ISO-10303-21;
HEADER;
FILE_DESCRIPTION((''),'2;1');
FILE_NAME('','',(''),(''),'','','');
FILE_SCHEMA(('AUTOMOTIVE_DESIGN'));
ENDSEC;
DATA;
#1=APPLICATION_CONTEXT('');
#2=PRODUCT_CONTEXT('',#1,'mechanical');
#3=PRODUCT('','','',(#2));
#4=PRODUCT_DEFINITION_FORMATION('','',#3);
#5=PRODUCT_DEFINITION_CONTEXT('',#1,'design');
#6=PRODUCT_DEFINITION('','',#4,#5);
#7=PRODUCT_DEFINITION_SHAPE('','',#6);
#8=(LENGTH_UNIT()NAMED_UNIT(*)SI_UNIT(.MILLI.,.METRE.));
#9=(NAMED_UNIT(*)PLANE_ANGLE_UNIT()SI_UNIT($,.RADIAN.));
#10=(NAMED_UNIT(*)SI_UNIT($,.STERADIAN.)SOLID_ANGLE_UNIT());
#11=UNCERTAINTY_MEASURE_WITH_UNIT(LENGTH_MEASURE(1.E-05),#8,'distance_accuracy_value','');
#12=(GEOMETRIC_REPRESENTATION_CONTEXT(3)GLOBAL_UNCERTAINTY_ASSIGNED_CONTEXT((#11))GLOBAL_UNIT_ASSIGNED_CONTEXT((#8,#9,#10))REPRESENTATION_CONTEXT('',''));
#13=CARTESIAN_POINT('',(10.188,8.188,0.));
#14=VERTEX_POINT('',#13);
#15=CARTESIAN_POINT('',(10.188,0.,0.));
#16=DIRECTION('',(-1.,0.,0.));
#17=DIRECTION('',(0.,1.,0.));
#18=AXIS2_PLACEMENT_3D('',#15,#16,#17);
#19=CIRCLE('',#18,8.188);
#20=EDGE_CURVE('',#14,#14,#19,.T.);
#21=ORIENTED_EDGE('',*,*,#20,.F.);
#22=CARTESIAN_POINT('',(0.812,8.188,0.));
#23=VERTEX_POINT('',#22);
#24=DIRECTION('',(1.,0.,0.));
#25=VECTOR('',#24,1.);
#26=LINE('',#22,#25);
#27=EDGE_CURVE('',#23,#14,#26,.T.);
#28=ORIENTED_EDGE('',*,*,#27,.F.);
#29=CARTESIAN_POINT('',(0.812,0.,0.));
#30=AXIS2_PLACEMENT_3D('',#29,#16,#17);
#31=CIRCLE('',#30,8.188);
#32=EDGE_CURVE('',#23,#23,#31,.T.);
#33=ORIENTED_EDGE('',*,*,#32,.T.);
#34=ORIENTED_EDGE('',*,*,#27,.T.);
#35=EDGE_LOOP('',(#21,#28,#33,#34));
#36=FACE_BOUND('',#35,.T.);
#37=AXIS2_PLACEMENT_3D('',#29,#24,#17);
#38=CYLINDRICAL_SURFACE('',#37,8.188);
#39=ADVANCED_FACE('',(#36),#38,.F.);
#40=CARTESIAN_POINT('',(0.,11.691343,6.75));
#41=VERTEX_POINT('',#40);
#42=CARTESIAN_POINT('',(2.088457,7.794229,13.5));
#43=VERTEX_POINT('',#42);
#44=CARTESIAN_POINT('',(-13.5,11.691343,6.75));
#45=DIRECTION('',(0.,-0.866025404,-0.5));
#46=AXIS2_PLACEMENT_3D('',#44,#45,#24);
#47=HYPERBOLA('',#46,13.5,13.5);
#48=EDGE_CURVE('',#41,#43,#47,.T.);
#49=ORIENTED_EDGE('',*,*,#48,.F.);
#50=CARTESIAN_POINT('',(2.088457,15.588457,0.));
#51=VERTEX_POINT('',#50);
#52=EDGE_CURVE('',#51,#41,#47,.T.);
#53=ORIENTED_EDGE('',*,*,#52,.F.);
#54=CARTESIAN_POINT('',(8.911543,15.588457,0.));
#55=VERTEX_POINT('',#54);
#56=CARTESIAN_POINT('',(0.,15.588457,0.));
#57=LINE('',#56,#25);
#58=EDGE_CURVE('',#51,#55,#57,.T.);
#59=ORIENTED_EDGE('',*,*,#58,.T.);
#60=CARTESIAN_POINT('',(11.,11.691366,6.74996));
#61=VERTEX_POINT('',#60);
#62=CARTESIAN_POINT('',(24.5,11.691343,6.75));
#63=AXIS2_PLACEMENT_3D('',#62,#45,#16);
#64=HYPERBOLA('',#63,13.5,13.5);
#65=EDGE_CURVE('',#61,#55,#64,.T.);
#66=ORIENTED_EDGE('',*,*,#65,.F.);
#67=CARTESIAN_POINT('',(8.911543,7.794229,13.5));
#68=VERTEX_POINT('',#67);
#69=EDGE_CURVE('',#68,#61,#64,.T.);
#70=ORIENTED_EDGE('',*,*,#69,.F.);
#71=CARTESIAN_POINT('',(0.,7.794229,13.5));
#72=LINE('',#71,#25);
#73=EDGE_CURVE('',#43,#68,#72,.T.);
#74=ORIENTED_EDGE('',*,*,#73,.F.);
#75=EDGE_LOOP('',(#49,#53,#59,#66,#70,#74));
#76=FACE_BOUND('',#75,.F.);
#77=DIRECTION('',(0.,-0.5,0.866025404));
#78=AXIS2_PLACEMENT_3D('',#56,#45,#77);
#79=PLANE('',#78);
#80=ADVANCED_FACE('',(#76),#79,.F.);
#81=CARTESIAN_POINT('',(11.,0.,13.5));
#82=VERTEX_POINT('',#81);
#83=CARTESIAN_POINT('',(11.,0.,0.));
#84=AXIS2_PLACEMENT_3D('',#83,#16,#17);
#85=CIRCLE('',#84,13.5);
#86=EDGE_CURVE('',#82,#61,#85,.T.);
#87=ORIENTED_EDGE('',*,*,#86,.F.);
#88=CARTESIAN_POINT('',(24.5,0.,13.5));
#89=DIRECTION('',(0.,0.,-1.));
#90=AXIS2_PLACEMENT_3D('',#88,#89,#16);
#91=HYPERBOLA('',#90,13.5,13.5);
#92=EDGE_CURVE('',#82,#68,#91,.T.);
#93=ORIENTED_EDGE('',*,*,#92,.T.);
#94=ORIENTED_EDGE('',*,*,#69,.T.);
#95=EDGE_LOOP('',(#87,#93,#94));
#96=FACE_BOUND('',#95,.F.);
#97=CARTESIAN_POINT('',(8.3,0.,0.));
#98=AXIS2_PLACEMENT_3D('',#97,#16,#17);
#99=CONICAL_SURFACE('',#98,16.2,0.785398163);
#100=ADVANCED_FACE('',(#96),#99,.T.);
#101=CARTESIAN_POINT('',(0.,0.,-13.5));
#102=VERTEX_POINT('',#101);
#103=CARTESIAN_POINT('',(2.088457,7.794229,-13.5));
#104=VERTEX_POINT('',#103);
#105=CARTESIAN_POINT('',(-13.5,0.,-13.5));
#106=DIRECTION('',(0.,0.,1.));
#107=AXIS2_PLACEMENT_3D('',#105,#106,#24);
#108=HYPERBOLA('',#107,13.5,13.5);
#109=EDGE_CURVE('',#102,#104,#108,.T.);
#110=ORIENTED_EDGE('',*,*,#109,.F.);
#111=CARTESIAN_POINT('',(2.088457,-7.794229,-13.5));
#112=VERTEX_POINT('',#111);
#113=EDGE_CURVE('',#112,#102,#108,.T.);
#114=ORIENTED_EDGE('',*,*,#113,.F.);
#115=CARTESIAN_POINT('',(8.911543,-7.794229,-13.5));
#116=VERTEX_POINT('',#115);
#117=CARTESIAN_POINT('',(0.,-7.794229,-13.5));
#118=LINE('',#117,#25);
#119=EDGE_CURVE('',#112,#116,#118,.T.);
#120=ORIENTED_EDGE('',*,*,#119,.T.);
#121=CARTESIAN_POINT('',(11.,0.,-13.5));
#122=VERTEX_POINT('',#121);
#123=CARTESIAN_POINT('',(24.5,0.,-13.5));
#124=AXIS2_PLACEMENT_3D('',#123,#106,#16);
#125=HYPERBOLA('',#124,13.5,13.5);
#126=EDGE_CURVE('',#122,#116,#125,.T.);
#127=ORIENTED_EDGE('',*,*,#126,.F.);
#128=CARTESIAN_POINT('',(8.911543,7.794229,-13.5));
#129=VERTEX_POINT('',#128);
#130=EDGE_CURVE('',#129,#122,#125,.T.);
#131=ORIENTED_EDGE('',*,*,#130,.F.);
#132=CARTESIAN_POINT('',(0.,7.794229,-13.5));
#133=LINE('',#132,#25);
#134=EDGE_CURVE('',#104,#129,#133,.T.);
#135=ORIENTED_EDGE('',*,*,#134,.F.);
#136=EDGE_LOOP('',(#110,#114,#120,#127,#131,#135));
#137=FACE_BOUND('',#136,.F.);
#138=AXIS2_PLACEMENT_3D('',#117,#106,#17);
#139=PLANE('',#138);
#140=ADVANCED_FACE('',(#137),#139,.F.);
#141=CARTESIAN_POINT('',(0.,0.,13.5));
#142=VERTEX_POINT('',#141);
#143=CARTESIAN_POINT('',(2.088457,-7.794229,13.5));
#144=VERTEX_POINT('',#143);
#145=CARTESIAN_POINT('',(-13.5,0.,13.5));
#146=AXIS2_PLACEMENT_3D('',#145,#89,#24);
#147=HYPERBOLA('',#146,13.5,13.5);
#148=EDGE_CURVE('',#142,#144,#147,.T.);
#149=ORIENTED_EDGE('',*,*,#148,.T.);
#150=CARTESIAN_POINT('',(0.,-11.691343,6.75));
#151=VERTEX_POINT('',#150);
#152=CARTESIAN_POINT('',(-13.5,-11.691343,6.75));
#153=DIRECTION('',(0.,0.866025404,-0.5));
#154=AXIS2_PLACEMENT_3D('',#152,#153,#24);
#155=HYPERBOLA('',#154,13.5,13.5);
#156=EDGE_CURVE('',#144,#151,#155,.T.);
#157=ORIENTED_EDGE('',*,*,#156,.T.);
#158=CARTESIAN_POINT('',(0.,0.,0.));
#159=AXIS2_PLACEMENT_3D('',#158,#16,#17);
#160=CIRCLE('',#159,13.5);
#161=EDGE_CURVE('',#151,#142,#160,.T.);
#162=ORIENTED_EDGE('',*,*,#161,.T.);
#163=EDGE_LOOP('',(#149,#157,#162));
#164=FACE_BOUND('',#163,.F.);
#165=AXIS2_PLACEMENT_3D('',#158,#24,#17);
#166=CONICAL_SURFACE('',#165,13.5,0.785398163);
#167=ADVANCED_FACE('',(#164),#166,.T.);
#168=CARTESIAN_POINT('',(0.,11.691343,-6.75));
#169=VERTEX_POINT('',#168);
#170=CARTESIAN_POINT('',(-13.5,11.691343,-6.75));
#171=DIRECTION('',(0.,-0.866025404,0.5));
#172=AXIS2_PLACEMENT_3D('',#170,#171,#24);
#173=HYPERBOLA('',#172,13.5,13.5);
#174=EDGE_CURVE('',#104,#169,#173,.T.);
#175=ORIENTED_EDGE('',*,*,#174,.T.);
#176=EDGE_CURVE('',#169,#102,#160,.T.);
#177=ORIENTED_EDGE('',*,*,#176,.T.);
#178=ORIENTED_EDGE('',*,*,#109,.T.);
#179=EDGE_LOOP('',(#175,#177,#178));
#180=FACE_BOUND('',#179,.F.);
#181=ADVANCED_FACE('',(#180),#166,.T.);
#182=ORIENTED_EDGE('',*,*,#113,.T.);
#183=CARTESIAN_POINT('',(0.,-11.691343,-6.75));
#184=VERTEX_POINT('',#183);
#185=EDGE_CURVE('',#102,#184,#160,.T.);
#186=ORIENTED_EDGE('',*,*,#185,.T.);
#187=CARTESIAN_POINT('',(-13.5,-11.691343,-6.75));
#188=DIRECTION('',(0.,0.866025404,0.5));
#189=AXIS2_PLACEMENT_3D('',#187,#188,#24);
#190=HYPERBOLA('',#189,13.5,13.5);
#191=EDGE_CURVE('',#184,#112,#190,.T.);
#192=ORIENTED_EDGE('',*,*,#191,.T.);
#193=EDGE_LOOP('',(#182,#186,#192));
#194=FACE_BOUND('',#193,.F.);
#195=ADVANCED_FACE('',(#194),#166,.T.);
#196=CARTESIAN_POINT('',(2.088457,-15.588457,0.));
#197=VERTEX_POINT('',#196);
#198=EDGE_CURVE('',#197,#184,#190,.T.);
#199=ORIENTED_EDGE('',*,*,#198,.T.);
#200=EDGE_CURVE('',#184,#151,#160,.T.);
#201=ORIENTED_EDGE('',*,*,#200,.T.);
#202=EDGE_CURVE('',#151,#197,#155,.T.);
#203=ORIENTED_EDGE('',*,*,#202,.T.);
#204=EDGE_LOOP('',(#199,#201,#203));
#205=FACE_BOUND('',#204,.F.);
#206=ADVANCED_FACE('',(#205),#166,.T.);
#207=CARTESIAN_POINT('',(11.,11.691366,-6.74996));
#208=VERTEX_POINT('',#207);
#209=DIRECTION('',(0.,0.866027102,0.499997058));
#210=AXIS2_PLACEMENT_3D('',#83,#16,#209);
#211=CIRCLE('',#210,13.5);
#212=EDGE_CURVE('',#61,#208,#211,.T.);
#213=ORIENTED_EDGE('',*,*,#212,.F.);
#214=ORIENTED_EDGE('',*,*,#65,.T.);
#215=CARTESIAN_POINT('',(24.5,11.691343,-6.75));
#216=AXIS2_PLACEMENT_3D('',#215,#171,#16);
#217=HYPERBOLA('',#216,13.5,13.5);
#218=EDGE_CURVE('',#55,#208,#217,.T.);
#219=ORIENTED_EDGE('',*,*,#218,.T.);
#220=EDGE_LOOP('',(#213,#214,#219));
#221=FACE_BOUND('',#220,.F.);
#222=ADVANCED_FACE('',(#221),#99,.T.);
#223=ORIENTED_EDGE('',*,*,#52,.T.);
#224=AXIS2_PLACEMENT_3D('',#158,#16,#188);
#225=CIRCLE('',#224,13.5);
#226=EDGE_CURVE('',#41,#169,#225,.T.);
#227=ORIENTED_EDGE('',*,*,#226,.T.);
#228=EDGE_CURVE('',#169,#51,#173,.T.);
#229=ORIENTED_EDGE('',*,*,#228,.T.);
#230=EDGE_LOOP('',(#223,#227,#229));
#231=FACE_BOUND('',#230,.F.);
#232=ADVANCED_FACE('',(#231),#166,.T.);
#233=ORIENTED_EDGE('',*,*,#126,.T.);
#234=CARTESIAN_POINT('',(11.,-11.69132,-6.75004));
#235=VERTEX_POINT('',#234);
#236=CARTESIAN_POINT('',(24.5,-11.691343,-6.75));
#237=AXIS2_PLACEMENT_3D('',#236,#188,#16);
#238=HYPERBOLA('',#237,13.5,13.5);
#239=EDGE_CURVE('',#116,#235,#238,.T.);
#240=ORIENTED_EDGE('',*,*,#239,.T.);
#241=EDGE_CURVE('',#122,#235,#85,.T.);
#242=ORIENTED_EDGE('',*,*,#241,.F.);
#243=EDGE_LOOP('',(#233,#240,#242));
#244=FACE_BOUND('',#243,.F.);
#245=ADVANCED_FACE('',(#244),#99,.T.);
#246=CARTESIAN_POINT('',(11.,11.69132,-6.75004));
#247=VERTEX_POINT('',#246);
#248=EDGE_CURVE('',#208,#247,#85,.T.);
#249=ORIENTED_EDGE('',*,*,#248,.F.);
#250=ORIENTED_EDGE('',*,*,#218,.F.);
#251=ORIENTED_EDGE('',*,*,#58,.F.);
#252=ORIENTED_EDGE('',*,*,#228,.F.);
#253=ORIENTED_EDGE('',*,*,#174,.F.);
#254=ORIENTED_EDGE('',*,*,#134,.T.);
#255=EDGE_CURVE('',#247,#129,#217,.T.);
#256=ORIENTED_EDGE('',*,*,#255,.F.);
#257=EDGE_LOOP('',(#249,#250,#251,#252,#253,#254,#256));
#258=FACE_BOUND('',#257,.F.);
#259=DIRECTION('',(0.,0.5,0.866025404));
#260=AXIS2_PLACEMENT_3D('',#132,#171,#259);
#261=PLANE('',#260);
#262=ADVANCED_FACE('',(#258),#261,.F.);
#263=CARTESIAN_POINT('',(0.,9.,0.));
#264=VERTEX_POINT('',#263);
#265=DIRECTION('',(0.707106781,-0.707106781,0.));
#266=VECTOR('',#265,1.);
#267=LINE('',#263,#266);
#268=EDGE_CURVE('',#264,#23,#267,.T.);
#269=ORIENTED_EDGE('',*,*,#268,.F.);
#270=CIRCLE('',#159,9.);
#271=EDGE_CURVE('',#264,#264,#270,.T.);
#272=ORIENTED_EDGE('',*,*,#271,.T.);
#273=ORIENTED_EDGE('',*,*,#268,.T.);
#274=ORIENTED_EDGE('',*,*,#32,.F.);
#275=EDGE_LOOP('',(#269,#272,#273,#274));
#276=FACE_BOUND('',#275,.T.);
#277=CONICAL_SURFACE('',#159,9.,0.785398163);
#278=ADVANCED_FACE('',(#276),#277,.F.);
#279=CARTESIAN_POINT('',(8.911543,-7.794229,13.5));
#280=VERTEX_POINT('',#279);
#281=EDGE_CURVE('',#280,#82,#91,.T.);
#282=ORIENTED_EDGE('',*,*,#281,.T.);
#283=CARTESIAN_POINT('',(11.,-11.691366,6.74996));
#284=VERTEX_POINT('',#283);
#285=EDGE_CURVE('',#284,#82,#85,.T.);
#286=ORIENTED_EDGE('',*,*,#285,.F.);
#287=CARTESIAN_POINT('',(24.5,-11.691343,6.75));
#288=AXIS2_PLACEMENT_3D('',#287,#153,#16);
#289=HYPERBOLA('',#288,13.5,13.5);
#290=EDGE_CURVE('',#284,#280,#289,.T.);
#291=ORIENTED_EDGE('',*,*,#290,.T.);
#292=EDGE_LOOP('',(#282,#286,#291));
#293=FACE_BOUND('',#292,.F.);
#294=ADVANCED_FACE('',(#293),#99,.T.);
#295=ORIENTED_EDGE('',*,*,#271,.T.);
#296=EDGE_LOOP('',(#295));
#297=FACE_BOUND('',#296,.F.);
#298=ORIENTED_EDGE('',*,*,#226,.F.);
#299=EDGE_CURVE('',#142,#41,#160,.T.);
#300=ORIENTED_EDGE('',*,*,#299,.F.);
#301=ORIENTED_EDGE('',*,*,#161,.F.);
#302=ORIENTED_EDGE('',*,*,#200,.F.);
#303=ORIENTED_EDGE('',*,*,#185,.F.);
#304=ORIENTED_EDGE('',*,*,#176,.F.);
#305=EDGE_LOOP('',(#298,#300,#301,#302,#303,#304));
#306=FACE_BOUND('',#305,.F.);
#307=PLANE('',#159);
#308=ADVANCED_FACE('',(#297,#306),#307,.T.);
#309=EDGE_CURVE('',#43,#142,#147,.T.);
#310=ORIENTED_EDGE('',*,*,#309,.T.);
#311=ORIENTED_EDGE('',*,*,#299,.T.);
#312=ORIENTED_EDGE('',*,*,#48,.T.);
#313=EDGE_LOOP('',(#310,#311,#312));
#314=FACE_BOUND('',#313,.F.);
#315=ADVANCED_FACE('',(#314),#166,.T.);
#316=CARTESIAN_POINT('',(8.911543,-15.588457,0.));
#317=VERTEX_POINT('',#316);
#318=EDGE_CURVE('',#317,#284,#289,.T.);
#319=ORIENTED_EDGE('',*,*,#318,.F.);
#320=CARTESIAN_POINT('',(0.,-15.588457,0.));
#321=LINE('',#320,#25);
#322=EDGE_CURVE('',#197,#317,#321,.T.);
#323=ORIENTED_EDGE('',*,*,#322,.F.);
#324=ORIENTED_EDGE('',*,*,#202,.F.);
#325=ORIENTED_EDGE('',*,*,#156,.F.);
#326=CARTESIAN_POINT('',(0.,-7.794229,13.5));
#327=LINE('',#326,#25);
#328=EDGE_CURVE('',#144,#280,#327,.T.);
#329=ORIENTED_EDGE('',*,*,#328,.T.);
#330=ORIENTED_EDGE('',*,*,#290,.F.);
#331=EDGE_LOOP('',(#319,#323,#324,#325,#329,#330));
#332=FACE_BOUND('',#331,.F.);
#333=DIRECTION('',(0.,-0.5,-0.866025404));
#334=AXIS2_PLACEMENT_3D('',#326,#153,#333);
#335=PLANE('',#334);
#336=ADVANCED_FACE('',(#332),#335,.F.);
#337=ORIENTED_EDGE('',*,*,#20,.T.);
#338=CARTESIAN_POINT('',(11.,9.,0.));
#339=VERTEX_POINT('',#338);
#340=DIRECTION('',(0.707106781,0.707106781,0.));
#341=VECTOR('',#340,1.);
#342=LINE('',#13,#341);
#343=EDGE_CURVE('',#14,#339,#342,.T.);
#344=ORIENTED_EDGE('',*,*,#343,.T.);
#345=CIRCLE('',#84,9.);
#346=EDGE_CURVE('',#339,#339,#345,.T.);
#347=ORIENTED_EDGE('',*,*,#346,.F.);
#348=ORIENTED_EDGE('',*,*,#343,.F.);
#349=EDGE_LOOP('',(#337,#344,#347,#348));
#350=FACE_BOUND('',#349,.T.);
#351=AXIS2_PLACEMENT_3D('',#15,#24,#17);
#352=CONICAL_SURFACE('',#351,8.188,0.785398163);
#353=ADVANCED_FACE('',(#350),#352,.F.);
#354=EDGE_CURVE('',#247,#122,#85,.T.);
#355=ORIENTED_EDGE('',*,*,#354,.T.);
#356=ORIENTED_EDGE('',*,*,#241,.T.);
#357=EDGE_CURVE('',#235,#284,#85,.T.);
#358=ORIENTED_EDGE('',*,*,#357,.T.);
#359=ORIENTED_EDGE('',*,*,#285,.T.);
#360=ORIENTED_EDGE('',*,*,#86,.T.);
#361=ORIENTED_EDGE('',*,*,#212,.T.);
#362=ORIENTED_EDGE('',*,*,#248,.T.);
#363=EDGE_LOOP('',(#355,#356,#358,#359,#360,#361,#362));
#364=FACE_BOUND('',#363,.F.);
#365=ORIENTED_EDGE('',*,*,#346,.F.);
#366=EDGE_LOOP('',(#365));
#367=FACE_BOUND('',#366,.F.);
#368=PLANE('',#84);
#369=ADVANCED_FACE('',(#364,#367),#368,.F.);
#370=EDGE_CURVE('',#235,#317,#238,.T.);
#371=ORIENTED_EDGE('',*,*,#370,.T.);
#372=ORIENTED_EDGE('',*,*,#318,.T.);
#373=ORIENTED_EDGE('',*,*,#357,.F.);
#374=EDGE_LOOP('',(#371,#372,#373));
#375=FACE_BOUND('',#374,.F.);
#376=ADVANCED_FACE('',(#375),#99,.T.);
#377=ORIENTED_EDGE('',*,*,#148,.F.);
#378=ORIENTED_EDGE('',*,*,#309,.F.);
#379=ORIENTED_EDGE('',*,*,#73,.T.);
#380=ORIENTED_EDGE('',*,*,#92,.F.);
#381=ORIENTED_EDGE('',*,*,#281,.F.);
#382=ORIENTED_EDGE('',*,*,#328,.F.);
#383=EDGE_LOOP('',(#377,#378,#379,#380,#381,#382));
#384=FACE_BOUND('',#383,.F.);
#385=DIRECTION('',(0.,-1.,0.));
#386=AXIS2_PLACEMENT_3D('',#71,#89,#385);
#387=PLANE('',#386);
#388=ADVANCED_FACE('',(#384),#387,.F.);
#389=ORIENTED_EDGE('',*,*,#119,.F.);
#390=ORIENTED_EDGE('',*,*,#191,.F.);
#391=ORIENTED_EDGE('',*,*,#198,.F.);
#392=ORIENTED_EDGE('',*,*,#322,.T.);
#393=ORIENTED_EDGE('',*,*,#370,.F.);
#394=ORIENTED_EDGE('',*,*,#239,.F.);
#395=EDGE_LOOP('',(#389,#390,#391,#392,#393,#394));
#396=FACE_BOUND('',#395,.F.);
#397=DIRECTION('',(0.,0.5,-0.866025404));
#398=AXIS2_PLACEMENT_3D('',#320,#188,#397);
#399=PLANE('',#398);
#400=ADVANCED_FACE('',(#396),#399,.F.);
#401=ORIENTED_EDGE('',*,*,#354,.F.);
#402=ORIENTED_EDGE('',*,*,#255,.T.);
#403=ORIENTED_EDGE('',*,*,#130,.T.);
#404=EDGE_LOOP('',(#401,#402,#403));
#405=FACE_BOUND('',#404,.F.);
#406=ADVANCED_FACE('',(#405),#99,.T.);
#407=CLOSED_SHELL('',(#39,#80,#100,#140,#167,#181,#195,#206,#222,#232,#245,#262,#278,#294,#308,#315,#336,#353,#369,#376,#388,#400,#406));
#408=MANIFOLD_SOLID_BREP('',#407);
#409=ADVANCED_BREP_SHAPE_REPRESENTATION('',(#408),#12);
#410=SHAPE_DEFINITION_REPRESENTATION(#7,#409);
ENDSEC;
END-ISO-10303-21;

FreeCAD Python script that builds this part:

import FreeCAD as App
import Part
import Sketcher

V = App.Vector
Q = App.Units.Quantity


def add_polygon(sketch, points):
    """Adds a closed chain of lines whose ends are joined by coincident constraints."""
    first, n = sketch.GeometryCount, len(points)
    for a, b in zip(points, points[1:] + points[:1]):
        sketch.addGeometry(Part.LineSegment(App.Vector(*a, 0), App.Vector(*b, 0)), False)
    for i in range(n):
        sketch.addConstraint(Sketcher.Constraint("Coincident", first + i, 2, first + (i + 1) % n, 1))

doc = App.newDocument("Part")
body = doc.addObject("PartDesign::Body", "Body")

# Sketch on XY plane
sketch1 = body.newObject("Sketcher::SketchObject", "Sketch")
sketch1.AttachmentSupport = (doc.getObject("XY_Plane"), [""])
sketch1.MapMode = "FlatFace"
add_polygon(sketch1, [(0, 13.5), (0, 0), (11, 0), (11, 13.5), (8.3, 16.2), (2.7, 16.2)])  # lines 0-5
sketch1.addConstraint([
    Sketcher.Constraint("Vertical", 0),
    Sketcher.Constraint("Horizontal", 1),
    Sketcher.Constraint("Vertical", 2),
    Sketcher.Constraint("Horizontal", 4),
    Sketcher.Constraint("Coincident", 0, 2, -1, 1),
    Sketcher.Constraint("Perpendicular", 3, 5),
    Sketcher.Constraint("Horizontal", 2, 2, 5, 2),
    Sketcher.Constraint("Equal", 3, 5),
    Sketcher.Constraint("DistanceX", 1, 1, 1, 2, Q("11 mm")),
    Sketcher.Constraint("DistanceX", 4, 2, 4, 1, Q("5.6 mm")),
    Sketcher.Constraint("DistanceY", 0, 2, 0, 1, Q("13.5 mm")),
])
revolution = body.newObject("PartDesign::Revolution", "Revolution")
revolution.Profile = sketch1
revolution.ReferenceAxis = (sketch1, ["H_Axis"])
revolution.Angle = 360

# Sketch on XY plane
sketch2 = body.newObject("Sketcher::SketchObject", "Sketch001")
sketch2.AttachmentSupport = (doc.getObject("XY_Plane"), [""])
sketch2.MapMode = "FlatFace"
add_polygon(sketch2, [(0, 9), (0, 0), (11, 0), (11, 9), (10.2, 8.2), (0.8, 8.2)])  # lines 0-5
sketch2.addConstraint([
    Sketcher.Constraint("Vertical", 0),
    Sketcher.Constraint("Horizontal", 1),
    Sketcher.Constraint("Vertical", 2),
    Sketcher.Constraint("Horizontal", 4),
    Sketcher.Constraint("Coincident", 0, 2, -1, 1),
    Sketcher.Constraint("Perpendicular", 3, 5),
    Sketcher.Constraint("Horizontal", 2, 2, 5, 2),
    Sketcher.Constraint("Equal", 3, 5),
    Sketcher.Constraint("DistanceX", 1, 1, 1, 2, Q("11 mm")),
    Sketcher.Constraint("DistanceY", 0, 2, 0, 1, Q("9 mm")),
    Sketcher.Constraint("DistanceX", 4, 2, 4, 1, Q("9.376 mm")),
])
groove = body.newObject("PartDesign::Groove", "Groove")
groove.Profile = sketch2
groove.ReferenceAxis = (sketch2, ["H_Axis"])
groove.Angle = 360

# Sketch on YZ plane
sketch3 = body.newObject("Sketcher::SketchObject", "Sketch002")
sketch3.AttachmentSupport = (doc.getObject("YZ_Plane"), [""])
sketch3.MapMode = "FlatFace"
add_polygon(sketch3, [(27, 27), (-27, 27), (-27, -27), (27, -27)])  # lines 0-3
add_polygon(sketch3, [(-16, 0), (-8, 14), (8, 14), (16, 0), (8, -14), (-8, -14)])  # lines 4-9
sketch3.addConstraint([
    Sketcher.Constraint("Horizontal", 0),
    Sketcher.Constraint("Vertical", 1),
    Sketcher.Constraint("Horizontal", 2),
    Sketcher.Constraint("Vertical", 3),
    Sketcher.Constraint("Horizontal", 5),
    Sketcher.Constraint("Horizontal", 8),
    Sketcher.Constraint("Symmetric", 0, 2, 2, 2, -1, 1),
    Sketcher.Constraint("Symmetric", 4, 2, 7, 2, -1, 1),
    Sketcher.Constraint("Symmetric", 6, 2, 9, 2, -1, 1),
    Sketcher.Constraint("PointOnObject", 6, 2, -1),
    Sketcher.Constraint("Parallel", 6, 9),
    Sketcher.Constraint("Vertical", 5, 2, 7, 2),
    Sketcher.Constraint("Equal", 2, 1),
    Sketcher.Constraint("DistanceX", 0, 2, 0, 1, Q("54 mm")),
    Sketcher.Constraint("Angle", 4, Q("60 deg")),
    Sketcher.Constraint("DistanceY", 7, 2, 5, 2, Q("27 mm")),
    Sketcher.Constraint("DistanceX", 5, 1, 5, 2, Q("15.588457 mm")),
])
pocket1 = body.newObject("PartDesign::Pocket", "Pocket")
pocket1.Profile = sketch3
pocket1.Type = "ThroughAll"
pocket1.Midplane = True

doc.recompute()
